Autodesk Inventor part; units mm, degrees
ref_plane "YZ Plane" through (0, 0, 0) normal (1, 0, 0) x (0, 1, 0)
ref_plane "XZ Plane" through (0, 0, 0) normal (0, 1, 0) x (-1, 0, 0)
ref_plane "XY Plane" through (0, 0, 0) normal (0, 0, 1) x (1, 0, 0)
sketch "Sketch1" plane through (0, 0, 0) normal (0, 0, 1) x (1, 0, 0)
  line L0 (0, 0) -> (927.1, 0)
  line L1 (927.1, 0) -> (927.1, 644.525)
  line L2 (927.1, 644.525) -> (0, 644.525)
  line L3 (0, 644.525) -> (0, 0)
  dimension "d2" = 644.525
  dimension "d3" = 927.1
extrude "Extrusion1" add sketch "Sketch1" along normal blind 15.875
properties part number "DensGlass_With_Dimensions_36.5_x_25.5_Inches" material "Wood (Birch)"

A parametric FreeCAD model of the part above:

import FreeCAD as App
import Part
import Sketcher
Q = App.Units.Quantity

doc = App.newDocument("Part")
body = doc.addObject("PartDesign::Body", "Body")

# Sketch on XY plane
sketch1 = body.newObject("Sketcher::SketchObject", "Sketch")
sketch1.AttachmentSupport = (doc.getObject("XY_Plane"), [""])
sketch1.MapMode = "FlatFace"
sketch1.addGeometry([
    Part.LineSegment(App.Vector(0, 645, 0), App.Vector(0, 0, 0)),
    Part.LineSegment(App.Vector(0, 0, 0), App.Vector(927, 0, 0)),
    Part.LineSegment(App.Vector(927, 0, 0), App.Vector(927, 645, 0)),
    Part.LineSegment(App.Vector(927, 645, 0), App.Vector(0, 645, 0)),
], False)
sketch1.addConstraint([
    Sketcher.Constraint("Coincident", 0, 2, 1, 1),
    Sketcher.Constraint("Coincident", 1, 2, 2, 1),
    Sketcher.Constraint("Coincident", 2, 2, 3, 1),
    Sketcher.Constraint("Coincident", 3, 2, 0, 1),
    Sketcher.Constraint("Vertical", 0),
    Sketcher.Constraint("Horizontal", 1),
    Sketcher.Constraint("Vertical", 2),
    Sketcher.Constraint("Horizontal", 3),
    Sketcher.Constraint("Coincident", 0, 2, -1, 1),
    Sketcher.Constraint("DistanceX", 1, 1, 1, 2, Q("36.5 in")),
    Sketcher.Constraint("DistanceY", 0, 2, 0, 1, Q("25.375 in")),
])
pad1 = body.newObject("PartDesign::Pad", "Pad")
pad1.Profile = sketch1
pad1.Length = Q("0.625 in")

doc.recompute()
